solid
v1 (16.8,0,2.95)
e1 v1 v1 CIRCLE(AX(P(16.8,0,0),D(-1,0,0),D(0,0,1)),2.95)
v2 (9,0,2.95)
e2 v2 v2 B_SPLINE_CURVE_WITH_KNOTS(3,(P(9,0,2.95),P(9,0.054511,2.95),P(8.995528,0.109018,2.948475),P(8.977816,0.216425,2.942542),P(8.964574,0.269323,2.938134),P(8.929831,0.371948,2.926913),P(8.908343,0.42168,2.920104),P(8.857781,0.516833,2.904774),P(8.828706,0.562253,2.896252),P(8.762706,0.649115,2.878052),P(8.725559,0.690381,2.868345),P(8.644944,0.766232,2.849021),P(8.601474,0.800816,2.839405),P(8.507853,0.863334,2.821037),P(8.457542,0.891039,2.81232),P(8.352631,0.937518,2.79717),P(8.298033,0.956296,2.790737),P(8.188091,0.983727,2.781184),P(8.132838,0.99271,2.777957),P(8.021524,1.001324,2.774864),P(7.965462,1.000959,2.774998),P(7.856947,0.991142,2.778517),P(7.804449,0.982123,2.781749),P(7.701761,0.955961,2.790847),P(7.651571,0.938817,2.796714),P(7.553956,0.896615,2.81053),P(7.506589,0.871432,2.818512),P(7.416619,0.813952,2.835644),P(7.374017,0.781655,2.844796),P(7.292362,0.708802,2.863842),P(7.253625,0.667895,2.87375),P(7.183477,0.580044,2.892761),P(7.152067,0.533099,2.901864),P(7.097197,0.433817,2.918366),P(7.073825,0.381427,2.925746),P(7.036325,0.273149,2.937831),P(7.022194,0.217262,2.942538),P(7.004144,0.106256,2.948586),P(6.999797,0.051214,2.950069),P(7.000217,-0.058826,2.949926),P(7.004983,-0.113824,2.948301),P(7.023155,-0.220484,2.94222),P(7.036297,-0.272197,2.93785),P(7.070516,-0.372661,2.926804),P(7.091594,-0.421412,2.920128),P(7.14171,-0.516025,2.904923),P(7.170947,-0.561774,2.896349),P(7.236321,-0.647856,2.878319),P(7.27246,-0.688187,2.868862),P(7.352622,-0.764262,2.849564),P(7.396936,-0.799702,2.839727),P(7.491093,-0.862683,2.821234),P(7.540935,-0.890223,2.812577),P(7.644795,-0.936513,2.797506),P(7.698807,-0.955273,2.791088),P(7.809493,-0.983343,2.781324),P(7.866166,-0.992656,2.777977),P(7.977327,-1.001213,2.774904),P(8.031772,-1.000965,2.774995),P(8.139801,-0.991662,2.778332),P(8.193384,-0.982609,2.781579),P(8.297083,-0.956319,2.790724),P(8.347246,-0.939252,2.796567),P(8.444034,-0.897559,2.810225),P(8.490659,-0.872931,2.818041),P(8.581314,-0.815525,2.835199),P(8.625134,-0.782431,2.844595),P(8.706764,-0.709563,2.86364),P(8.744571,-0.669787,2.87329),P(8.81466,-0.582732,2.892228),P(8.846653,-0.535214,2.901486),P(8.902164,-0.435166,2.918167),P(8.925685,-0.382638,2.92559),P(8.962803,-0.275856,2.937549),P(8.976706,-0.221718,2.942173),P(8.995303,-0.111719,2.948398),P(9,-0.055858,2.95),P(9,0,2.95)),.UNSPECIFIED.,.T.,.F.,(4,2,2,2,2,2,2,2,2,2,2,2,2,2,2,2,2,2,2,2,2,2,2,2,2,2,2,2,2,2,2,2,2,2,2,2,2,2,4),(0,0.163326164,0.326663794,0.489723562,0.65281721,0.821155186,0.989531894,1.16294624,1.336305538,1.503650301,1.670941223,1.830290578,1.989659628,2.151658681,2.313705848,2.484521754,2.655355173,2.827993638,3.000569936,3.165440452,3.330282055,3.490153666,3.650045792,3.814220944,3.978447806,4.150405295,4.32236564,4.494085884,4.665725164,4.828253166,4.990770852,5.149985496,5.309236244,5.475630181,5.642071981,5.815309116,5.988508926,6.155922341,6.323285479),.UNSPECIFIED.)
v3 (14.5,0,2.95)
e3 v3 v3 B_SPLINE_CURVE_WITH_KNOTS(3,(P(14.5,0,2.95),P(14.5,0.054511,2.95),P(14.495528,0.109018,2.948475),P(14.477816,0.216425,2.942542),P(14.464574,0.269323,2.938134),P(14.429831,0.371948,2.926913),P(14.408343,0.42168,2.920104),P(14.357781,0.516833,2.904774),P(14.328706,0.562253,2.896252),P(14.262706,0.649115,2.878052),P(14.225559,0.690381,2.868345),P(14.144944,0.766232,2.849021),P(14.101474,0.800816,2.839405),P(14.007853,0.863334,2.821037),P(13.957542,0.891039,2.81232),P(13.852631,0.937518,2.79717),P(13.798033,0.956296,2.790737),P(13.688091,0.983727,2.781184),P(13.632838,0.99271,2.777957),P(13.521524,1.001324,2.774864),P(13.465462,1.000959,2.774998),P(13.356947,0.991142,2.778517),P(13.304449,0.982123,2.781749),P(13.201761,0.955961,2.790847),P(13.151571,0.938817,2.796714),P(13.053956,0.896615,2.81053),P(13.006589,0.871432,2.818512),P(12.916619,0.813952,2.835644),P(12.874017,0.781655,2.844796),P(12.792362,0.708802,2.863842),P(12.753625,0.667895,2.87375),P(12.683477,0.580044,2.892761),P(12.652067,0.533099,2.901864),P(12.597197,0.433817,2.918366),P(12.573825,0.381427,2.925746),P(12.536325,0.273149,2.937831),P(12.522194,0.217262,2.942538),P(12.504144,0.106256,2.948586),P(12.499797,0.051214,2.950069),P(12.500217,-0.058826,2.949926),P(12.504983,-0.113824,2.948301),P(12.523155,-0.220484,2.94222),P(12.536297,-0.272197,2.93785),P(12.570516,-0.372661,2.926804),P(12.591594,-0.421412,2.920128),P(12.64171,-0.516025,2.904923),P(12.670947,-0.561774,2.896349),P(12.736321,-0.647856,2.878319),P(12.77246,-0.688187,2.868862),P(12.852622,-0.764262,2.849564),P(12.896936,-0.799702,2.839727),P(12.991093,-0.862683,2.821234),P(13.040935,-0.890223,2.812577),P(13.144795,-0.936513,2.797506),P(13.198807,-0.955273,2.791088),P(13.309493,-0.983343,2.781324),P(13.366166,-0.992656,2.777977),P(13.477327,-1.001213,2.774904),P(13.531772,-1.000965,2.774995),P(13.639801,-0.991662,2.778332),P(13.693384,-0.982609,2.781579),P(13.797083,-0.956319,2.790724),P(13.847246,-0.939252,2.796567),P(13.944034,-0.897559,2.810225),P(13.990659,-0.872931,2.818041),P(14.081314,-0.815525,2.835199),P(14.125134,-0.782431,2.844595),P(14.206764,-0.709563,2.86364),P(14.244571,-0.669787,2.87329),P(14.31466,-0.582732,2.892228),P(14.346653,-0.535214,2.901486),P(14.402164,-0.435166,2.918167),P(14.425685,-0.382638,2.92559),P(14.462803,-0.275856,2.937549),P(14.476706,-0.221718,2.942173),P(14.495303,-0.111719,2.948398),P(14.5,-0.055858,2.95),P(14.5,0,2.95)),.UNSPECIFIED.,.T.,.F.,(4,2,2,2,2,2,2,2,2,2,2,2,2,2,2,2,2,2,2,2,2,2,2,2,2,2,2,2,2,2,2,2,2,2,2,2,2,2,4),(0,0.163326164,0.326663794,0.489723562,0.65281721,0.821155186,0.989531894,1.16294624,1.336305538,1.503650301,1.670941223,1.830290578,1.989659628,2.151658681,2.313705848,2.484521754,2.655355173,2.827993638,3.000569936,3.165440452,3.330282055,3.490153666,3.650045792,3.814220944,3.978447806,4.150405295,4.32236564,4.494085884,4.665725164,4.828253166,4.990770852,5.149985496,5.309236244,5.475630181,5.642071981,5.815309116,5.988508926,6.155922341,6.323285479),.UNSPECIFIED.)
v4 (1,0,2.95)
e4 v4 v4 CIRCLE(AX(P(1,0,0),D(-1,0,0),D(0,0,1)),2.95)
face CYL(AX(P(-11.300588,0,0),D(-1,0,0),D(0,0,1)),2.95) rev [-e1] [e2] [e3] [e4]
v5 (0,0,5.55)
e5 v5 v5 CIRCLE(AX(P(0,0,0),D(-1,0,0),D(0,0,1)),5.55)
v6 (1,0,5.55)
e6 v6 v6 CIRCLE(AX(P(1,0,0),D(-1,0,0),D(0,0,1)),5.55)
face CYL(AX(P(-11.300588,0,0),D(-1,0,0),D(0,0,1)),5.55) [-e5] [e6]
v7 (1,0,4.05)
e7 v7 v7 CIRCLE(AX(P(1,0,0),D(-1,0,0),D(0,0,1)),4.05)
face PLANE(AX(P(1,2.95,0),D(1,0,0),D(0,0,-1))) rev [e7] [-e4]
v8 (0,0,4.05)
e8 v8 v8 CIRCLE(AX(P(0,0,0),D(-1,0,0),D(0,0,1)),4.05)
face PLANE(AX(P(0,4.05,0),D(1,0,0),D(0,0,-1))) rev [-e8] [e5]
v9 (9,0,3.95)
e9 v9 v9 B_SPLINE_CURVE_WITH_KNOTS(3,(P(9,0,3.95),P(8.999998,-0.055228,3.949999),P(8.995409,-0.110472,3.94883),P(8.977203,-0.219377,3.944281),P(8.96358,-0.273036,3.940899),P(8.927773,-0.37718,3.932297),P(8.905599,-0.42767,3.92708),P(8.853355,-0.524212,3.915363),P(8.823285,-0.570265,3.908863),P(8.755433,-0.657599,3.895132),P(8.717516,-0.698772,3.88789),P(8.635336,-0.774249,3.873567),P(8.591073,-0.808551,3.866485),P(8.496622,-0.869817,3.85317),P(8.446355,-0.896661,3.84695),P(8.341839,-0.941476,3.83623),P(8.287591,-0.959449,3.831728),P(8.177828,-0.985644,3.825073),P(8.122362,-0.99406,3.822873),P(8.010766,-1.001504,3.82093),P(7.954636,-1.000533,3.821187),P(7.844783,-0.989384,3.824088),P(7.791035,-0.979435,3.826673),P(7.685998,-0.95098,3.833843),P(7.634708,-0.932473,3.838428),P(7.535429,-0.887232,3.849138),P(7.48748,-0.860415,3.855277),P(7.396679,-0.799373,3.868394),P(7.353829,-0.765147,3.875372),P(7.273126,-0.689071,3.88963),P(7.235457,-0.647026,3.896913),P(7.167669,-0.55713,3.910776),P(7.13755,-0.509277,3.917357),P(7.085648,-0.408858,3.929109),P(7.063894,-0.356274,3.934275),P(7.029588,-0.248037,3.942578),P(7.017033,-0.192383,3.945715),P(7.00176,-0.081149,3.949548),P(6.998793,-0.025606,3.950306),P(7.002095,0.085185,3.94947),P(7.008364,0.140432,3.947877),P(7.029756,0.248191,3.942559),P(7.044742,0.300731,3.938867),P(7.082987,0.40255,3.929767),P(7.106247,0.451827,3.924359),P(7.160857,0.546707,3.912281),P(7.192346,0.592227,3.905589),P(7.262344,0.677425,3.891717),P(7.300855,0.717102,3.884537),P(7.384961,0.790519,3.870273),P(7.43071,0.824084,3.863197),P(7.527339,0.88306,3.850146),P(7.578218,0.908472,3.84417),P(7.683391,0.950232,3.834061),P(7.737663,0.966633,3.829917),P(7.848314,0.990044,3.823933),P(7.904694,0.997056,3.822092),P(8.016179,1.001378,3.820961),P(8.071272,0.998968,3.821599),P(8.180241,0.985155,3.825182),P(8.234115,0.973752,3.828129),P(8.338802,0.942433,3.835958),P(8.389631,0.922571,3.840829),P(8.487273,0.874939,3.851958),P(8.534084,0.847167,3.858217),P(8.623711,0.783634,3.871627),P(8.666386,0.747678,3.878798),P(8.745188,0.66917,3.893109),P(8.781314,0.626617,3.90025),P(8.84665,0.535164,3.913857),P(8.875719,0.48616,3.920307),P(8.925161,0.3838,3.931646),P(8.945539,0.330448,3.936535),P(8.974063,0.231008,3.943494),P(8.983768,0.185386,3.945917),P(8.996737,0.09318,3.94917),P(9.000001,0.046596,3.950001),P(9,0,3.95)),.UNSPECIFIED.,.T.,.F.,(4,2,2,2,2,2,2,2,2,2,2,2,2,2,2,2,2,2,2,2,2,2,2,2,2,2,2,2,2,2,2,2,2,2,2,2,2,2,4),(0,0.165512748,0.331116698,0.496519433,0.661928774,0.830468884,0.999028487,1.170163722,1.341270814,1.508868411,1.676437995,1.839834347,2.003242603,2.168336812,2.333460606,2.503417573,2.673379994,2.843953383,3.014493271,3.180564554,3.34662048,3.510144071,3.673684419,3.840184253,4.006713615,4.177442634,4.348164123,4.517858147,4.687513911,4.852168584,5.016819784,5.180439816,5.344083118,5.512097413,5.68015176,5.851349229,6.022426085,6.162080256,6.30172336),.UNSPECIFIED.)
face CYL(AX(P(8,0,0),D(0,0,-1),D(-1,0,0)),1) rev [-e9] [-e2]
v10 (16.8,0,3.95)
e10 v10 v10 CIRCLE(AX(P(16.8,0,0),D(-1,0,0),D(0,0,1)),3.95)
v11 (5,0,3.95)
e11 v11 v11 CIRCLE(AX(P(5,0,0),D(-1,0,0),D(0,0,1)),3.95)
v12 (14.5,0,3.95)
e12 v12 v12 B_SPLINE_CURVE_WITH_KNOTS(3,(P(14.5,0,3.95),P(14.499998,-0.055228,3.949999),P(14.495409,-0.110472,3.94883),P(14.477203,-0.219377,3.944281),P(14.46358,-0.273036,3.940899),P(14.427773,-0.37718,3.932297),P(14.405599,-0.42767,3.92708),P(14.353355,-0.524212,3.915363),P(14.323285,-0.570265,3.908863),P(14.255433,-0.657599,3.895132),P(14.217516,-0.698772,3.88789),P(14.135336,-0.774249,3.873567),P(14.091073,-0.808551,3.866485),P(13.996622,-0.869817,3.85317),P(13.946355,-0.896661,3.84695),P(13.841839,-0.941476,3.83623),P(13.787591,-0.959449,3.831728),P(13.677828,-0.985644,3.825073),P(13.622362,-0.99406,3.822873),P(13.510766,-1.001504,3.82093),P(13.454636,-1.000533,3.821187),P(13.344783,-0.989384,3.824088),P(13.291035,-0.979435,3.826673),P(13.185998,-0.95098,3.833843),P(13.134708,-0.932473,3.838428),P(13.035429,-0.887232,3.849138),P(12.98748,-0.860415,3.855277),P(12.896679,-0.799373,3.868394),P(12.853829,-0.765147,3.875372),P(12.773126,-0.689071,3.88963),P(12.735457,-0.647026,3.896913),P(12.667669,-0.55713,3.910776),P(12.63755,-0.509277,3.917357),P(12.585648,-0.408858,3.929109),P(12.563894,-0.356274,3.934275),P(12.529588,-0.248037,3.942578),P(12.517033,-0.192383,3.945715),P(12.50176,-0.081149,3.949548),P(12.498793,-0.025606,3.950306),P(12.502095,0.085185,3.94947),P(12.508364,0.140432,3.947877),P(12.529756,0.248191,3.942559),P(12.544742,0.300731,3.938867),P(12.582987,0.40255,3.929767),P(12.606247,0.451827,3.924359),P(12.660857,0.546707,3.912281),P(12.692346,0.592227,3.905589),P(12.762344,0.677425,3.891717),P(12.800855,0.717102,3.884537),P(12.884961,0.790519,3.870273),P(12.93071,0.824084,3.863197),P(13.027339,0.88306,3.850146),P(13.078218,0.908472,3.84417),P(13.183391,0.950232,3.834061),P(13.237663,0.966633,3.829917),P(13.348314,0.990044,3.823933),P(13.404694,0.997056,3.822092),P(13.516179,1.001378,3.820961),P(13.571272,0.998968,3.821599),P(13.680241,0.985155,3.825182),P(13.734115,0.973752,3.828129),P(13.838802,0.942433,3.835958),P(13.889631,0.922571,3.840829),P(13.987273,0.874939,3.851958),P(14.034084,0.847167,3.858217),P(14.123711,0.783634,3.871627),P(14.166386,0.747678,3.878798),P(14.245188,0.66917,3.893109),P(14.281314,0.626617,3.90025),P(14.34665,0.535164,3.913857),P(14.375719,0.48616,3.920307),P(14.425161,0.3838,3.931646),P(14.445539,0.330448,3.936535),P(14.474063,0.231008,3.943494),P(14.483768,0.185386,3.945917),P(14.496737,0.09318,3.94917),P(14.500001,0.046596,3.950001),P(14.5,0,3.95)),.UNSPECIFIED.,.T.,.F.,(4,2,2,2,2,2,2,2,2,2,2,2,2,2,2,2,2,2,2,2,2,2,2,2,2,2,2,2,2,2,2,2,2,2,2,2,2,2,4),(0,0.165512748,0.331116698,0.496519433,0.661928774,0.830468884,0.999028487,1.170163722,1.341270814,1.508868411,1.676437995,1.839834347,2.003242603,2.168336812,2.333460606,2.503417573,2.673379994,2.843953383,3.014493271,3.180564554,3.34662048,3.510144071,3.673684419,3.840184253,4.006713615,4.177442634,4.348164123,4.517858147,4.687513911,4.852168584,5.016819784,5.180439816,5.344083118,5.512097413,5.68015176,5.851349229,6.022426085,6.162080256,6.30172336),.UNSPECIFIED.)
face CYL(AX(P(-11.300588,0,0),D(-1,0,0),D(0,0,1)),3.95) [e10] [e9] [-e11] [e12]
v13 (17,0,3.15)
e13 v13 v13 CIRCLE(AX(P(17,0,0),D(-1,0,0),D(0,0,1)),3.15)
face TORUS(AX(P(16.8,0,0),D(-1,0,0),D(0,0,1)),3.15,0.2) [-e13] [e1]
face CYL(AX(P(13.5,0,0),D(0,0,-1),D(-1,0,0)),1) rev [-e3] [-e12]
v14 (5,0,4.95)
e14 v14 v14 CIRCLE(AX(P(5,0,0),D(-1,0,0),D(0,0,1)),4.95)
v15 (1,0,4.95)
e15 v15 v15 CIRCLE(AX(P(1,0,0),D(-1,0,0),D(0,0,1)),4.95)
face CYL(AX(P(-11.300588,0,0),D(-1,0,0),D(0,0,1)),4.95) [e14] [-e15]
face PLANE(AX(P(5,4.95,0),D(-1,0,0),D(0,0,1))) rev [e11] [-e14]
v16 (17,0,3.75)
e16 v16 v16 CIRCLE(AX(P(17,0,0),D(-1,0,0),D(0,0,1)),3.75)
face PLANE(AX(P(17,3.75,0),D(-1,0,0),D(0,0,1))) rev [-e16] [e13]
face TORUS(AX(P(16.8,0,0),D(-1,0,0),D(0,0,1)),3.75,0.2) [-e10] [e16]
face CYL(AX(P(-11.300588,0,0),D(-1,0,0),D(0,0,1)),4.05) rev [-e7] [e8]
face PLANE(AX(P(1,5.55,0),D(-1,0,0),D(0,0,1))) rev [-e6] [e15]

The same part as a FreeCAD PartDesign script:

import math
import FreeCAD as App
import Part
import Sketcher
from FreeCAD import Vector


def add_polygon(sketch, points):
    """Adds a closed chain of lines whose ends are joined by coincident constraints."""
    first, n = sketch.GeometryCount, len(points)
    for a, b in zip(points, points[1:] + points[:1]):
        sketch.addGeometry(Part.LineSegment(App.Vector(*a, 0), App.Vector(*b, 0)), False)
    for i in range(n):
        sketch.addConstraint(Sketcher.Constraint("Coincident", first + i, 2, first + (i + 1) % n, 1))

doc = App.newDocument("Part")
body = doc.addObject("PartDesign::Body", "Body")

# Sketch on XY plane
sketch1 = body.newObject("Sketcher::SketchObject", "Sketch")
sketch1.AttachmentSupport = (doc.getObject("XY_Plane"), [""])
sketch1.MapMode = "FlatFace"
sketch1.addGeometry([
    Part.LineSegment(Vector(0, 5.55, 0), Vector(0, 4.05, 0)),  # 0
    Part.LineSegment(Vector(0, 4.05, 0), Vector(1, 4.05, 0)),  # 1
    Part.LineSegment(Vector(1, 4.05, 0), Vector(1, 2.95, 0)),  # 2
    Part.LineSegment(Vector(1, 2.95, 0), Vector(16.8, 2.95, 0)),  # 3
    Part.ArcOfCircle(Part.Circle(Vector(16.8, 3.15, 0), Vector(0, 0, 1), 0.2), math.radians(-90), math.radians(0)),  # 4
    Part.LineSegment(Vector(17, 3.15, 0), Vector(17, 3.75, 0)),  # 5
    Part.ArcOfCircle(Part.Circle(Vector(16.8, 3.75, 0), Vector(0, 0, 1), 0.2), math.radians(0), math.radians(90)),  # 6
    Part.LineSegment(Vector(16.8, 3.95, 0), Vector(5, 3.95, 0)),  # 7
    Part.LineSegment(Vector(5, 3.95, 0), Vector(5, 4.95, 0)),  # 8
    Part.LineSegment(Vector(5, 4.95, 0), Vector(1, 4.95, 0)),  # 9
    Part.LineSegment(Vector(1, 4.95, 0), Vector(1, 5.55, 0)),  # 10
    Part.LineSegment(Vector(1, 5.55, 0), Vector(0, 5.55, 0)),  # 11
], False)
sketch1.addConstraint([
    Sketcher.Constraint("Coincident", 0, 2, 1, 1),
    Sketcher.Constraint("Coincident", 1, 2, 2, 1),
    Sketcher.Constraint("Coincident", 2, 2, 3, 1),
    Sketcher.Constraint("Tangent", 3, 2, 4, 1),
    Sketcher.Constraint("Tangent", 4, 2, 5, 1),
    Sketcher.Constraint("Tangent", 5, 2, 6, 1),
    Sketcher.Constraint("Tangent", 6, 2, 7, 1),
    Sketcher.Constraint("Coincident", 7, 2, 8, 1),
    Sketcher.Constraint("Coincident", 8, 2, 9, 1),
    Sketcher.Constraint("Coincident", 9, 2, 10, 1),
    Sketcher.Constraint("Coincident", 10, 2, 11, 1),
    Sketcher.Constraint("Coincident", 11, 2, 0, 1),
    Sketcher.Constraint("Vertical", 0),
    Sketcher.Constraint("Horizontal", 1),
    Sketcher.Constraint("Vertical", 2),
    Sketcher.Constraint("Horizontal", 3),
    Sketcher.Constraint("Vertical", 5),
    Sketcher.Constraint("Horizontal", 7),
    Sketcher.Constraint("Vertical", 8),
    Sketcher.Constraint("Horizontal", 9),
    Sketcher.Constraint("Vertical", 10),
    Sketcher.Constraint("Horizontal", 11),
    Sketcher.Constraint("Equal", 4, 6),
    Sketcher.Constraint("PointOnObject", 0, 2, -2),
    Sketcher.Constraint("Vertical", 2, 2, 9, 2),
    Sketcher.Constraint("Equal", 11, 8),
    Sketcher.Constraint("Equal", 5, 10),
    Sketcher.Constraint("Radius", 4, 0.2),
    Sketcher.Constraint("DistanceX", 1, 1, 1, 2, 1.0),
    Sketcher.Constraint("DistanceX", 9, 2, 9, 1, 4.0),
    Sketcher.Constraint("DistanceX", 3, 1, 3, 2, 15.8),
    Sketcher.Constraint("DistanceY", 0, 2, 0, 1, 1.5),
    Sketcher.Constraint("DistanceY", 2, 2, 2, 1, 1.1),
    Sketcher.Constraint("DistanceY", -1, 1, 4, 3, 3.15),
])
revolution = body.newObject("PartDesign::Revolution", "Revolution")
revolution.Profile = sketch1
revolution.ReferenceAxis = (sketch1, ["H_Axis"])
revolution.Angle = 360

# Sketch on YZ plane
sketch2 = body.newObject("Sketcher::SketchObject", "Sketch001")
sketch2.AttachmentSupport = (doc.getObject("YZ_Plane"), [""])
sketch2.MapMode = "FlatFace"
sketch2.AttachmentOffset = App.Placement(Vector(0, 0, 8), App.Rotation())
add_polygon(sketch2, [(0, 5.5), (0, 0), (1, 0), (1, 5.5)])  # lines 0-3
sketch2.addConstraint([
    Sketcher.Constraint("Vertical", 0),
    Sketcher.Constraint("Horizontal", 1),
    Sketcher.Constraint("Vertical", 2),
    Sketcher.Constraint("Horizontal", 3),
    Sketcher.Constraint("Coincident", 0, 2, -1, 1),
    Sketcher.Constraint("DistanceX", 1, 1, 1, 2, 1.0),
    Sketcher.Constraint("DistanceY", 0, 2, 0, 1, 5.55),
])
groove = body.newObject("PartDesign::Groove", "Groove")
groove.Profile = sketch2
groove.ReferenceAxis = (sketch2, ["V_Axis"])
groove.Angle = 360
doc.recompute()

linearpattern = body.newObject("PartDesign::LinearPattern", "LinearPattern")
linearpattern.Originals = [groove]
linearpattern.Direction = (doc.getObject("X_Axis"), [""])
linearpattern.Mode = "offset"
linearpattern.Offset = 5.5
linearpattern.Occurrences = 2
body.Tip = linearpattern

doc.recompute()
